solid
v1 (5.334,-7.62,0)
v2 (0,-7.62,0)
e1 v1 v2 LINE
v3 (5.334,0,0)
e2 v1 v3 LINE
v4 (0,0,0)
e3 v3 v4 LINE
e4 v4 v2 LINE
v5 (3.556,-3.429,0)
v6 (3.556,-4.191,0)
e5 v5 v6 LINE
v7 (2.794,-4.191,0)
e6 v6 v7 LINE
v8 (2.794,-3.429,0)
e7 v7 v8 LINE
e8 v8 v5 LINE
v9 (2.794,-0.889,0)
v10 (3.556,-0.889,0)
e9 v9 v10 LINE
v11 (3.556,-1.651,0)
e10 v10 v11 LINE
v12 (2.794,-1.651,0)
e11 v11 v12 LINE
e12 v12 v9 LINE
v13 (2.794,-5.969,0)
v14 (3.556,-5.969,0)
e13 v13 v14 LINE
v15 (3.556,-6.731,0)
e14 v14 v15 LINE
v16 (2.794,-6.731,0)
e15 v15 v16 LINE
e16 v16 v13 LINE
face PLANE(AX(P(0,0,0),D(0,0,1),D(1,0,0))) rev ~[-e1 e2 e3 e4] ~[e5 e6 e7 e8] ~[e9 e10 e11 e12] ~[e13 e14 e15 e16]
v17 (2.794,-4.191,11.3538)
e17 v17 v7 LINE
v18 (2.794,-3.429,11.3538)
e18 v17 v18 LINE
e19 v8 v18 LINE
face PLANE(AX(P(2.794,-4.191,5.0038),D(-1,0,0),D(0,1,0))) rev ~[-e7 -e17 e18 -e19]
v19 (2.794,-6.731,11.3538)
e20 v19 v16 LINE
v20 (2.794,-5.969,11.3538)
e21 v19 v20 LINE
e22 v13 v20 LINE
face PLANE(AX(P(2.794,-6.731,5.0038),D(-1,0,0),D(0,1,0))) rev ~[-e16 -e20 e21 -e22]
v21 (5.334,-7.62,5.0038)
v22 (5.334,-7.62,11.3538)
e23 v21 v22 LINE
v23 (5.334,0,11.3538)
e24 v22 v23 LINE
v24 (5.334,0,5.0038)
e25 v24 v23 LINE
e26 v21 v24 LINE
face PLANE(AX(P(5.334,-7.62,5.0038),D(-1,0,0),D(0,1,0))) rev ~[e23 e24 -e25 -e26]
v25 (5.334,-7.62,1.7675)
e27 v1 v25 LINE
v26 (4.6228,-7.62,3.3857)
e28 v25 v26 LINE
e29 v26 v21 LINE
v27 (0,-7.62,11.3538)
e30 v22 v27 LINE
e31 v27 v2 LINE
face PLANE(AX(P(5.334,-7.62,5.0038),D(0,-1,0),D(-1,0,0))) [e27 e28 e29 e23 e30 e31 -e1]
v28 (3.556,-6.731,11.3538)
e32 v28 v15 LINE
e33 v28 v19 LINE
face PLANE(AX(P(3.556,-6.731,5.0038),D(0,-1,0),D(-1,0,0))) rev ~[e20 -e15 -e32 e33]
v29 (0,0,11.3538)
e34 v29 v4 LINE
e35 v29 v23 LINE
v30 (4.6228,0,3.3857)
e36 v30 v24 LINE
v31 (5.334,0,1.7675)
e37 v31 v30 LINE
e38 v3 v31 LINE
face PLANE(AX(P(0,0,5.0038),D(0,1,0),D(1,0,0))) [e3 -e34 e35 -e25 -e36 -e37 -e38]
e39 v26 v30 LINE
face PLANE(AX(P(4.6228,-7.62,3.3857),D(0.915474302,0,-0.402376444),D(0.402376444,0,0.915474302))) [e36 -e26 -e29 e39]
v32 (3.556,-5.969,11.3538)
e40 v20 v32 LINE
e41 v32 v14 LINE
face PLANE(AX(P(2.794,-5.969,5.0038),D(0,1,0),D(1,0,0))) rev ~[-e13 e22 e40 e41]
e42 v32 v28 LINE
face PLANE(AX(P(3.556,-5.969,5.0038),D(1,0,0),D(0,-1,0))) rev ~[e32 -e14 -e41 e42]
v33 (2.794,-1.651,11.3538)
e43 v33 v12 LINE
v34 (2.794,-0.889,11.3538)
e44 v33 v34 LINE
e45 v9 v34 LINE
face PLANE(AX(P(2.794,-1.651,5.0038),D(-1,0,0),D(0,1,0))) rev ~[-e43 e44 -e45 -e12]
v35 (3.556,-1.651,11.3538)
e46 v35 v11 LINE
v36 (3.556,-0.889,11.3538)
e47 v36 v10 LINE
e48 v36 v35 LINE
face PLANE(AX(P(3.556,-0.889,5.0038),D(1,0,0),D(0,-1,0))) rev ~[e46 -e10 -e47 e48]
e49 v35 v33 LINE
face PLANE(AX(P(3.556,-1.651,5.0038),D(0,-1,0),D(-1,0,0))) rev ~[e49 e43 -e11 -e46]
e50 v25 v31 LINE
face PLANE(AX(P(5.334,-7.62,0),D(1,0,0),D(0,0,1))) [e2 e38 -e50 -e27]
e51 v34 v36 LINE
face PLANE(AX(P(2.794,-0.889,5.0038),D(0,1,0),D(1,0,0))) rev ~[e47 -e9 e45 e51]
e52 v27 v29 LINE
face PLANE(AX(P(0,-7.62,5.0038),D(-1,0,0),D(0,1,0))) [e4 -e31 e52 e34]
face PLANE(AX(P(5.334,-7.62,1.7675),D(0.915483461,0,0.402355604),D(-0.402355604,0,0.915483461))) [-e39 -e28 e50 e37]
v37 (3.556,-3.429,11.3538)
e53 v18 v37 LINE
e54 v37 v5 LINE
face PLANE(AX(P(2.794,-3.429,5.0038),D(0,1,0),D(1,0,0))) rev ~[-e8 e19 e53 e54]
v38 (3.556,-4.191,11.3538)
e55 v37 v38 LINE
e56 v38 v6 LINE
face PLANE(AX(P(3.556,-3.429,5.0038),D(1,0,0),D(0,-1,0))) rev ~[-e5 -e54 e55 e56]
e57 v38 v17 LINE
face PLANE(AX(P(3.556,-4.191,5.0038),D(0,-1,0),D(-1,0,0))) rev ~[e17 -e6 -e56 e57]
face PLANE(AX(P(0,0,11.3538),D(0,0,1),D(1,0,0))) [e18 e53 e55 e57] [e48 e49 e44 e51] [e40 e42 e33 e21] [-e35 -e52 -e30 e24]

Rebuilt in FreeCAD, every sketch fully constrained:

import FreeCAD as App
import Part
import Sketcher
from FreeCAD import Vector
Q = App.Units.Quantity


def add_polygon(sketch, points):
    """Adds a closed chain of lines whose ends are joined by coincident constraints."""
    first, n = sketch.GeometryCount, len(points)
    for a, b in zip(points, points[1:] + points[:1]):
        sketch.addGeometry(Part.LineSegment(App.Vector(*a, 0), App.Vector(*b, 0)), False)
    for i in range(n):
        sketch.addConstraint(Sketcher.Constraint("Coincident", first + i, 2, first + (i + 1) % n, 1))

doc = App.newDocument("Part")
body = doc.addObject("PartDesign::Body", "Body")

sketch1 = doc.addObject("Sketcher::SketchObject", "Sketch")
body.addObject(sketch1)
sketch1.AttachmentSupport = (doc.XY_Plane, [""])
sketch1.MapMode = "FlatFace"
add_polygon(sketch1, [(6.35, 0), (0, 0), (0, -7.62), (6.35, -7.62)])
add_polygon(sketch1, [(2.794, -1.651), (2.794, -0.889), (3.556, -0.889), (3.556, -1.651)])
add_polygon(sketch1, [(3.556, -6.731), (2.794, -6.731), (2.794, -5.969), (3.556, -5.969)])
add_polygon(sketch1, [(3.556, -4.191), (2.794, -4.191), (2.794, -3.429), (3.556, -3.429)])
sketch1.addConstraint(Sketcher.Constraint("Horizontal", 0))
sketch1.addConstraint(Sketcher.Constraint("Vertical", 1))
sketch1.addConstraint(Sketcher.Constraint("Horizontal", 2))
sketch1.addConstraint(Sketcher.Constraint("Vertical", 3))
sketch1.addConstraint(Sketcher.Constraint("Vertical", 4))
sketch1.addConstraint(Sketcher.Constraint("Horizontal", 5))
sketch1.addConstraint(Sketcher.Constraint("Vertical", 6))
sketch1.addConstraint(Sketcher.Constraint("Horizontal", 7))
sketch1.addConstraint(Sketcher.Constraint("Horizontal", 8))
sketch1.addConstraint(Sketcher.Constraint("Vertical", 9))
sketch1.addConstraint(Sketcher.Constraint("Horizontal", 10))
sketch1.addConstraint(Sketcher.Constraint("Vertical", 11))
sketch1.addConstraint(Sketcher.Constraint("Horizontal", 12))
sketch1.addConstraint(Sketcher.Constraint("Vertical", 13))
sketch1.addConstraint(Sketcher.Constraint("Horizontal", 14))
sketch1.addConstraint(Sketcher.Constraint("Vertical", 15))
sketch1.addConstraint(Sketcher.Constraint("Coincident", 0, 2, -1, 1))
sketch1.addConstraint(Sketcher.Constraint("Vertical", 7, 2, 8, 2))
sketch1.addConstraint(Sketcher.Constraint("Vertical", 6, 2, 10, 2))
sketch1.addConstraint(Sketcher.Constraint("Vertical", 9, 2, 12, 2))
sketch1.addConstraint(Sketcher.Constraint("Vertical", 11, 2, 14, 2))
sketch1.addConstraint(Sketcher.Constraint("Equal", 14, 4))
sketch1.addConstraint(Sketcher.Constraint("Equal", 6, 9))
sketch1.addConstraint(Sketcher.Constraint("Equal", 11, 13))
sketch1.addConstraint(Sketcher.Constraint("DistanceY", 1, 2, 1, 1, Q("0.3 in")))
sketch1.addConstraint(Sketcher.Constraint("DistanceX", 0, 2, 0, 1, Q("0.25 in")))
sketch1.addConstraint(Sketcher.Constraint("DistanceX", 5, 1, 5, 2, Q("0.03 in")))
sketch1.addConstraint(Sketcher.Constraint("DistanceY", 8, 2, 7, 2, Q("0.2 in")))
sketch1.addConstraint(Sketcher.Constraint("DistanceY", 12, 2, 7, 2, Q("0.1 in")))
sketch1.addConstraint(Sketcher.Constraint("DistanceX", -1, 1, 4, 2, Q("0.11 in")))
sketch1.addConstraint(Sketcher.Constraint("DistanceY", 4, 2, -1, 1, Q("0.035 in")))
pad1 = doc.addObject("PartDesign::Pad", "Pad")
body.addObject(pad1)
pad1.Profile = sketch1
pad1.Length = Q("0.197 in")

sketch2 = doc.addObject("Sketcher::SketchObject", "Sketch001")
body.addObject(sketch2)
sketch2.AttachmentSupport = (doc.XZ_Plane, [""])
sketch2.MapMode = "FlatFace"
sketch2.AttachmentOffset = App.Placement(Vector(0, 0, 0.3 * 25.4), App.Rotation())
add_polygon(sketch2, [(6.35, 0), (6.35, 5.0038), (5.334, 5.0038), (4.6228, 3.3857), (5.334, 1.7675), (5.334, 0)])
sketch2.addConstraint(Sketcher.Constraint("Vertical", 0))
sketch2.addConstraint(Sketcher.Constraint("Horizontal", 1))
sketch2.addConstraint(Sketcher.Constraint("Vertical", 4))
sketch2.addConstraint(Sketcher.Constraint("Horizontal", 5))
sketch2.addConstraint(Sketcher.Constraint("PointOnObject", 4, 2, -1))
sketch2.addConstraint(Sketcher.Constraint("Vertical", 1, 2, 3, 2))
sketch2.addConstraint(Sketcher.Constraint("Equal", 2, 3))
sketch2.addConstraint(Sketcher.Constraint("DistanceX", 1, 2, 1, 1, Q("0.04 in")))
sketch2.addConstraint(Sketcher.Constraint("DistanceY", 0, 1, 0, 2, Q("0.197 in")))
sketch2.addConstraint(Sketcher.Constraint("DistanceX", -1, 1, 0, 2, Q("0.25 in")))
sketch2.addConstraint(Sketcher.Constraint("DistanceX", -1, 1, 2, 2, Q("0.182 in")))
sketch2.addConstraint(Sketcher.Constraint("Distance", 3, Q("0.0696 in")))
pocket1 = doc.addObject("PartDesign::Pocket", "Pocket")
body.addObject(pocket1)
pocket1.Profile = sketch2
pocket1.Length = Q("1 in")

sketch3 = doc.addObject("Sketcher::SketchObject", "Sketch002")
body.addObject(sketch3)
sketch3.AttachmentSupport = (doc.XY_Plane, [""])
sketch3.MapMode = "FlatFace"
sketch3.AttachmentOffset = App.Placement(Vector(0, 0, 0.197 * 25.4), App.Rotation())
add_polygon(sketch3, [(0, -7.62), (5.334, -7.62), (5.334, 0), (0, 0)])
add_polygon(sketch3, [(2.794, -6.731), (2.794, -5.969), (3.556, -5.969), (3.556, -6.731)])
add_polygon(sketch3, [(2.794, -4.191), (2.794, -3.429), (3.556, -3.429), (3.556, -4.191)])
add_polygon(sketch3, [(2.794, -1.651), (2.794, -0.889), (3.556, -0.889), (3.556, -1.651)])
sketch3.addConstraint(Sketcher.Constraint("Horizontal", 0))
sketch3.addConstraint(Sketcher.Constraint("Vertical", 1))
sketch3.addConstraint(Sketcher.Constraint("Horizontal", 2))
sketch3.addConstraint(Sketcher.Constraint("Vertical", 3))
sketch3.addConstraint(Sketcher.Constraint("Vertical", 4))
sketch3.addConstraint(Sketcher.Constraint("Horizontal", 5))
sketch3.addConstraint(Sketcher.Constraint("Vertical", 6))
sketch3.addConstraint(Sketcher.Constraint("Horizontal", 7))
sketch3.addConstraint(Sketcher.Constraint("Vertical", 8))
sketch3.addConstraint(Sketcher.Constraint("Horizontal", 9))
sketch3.addConstraint(Sketcher.Constraint("Vertical", 10))
sketch3.addConstraint(Sketcher.Constraint("Horizontal", 11))
sketch3.addConstraint(Sketcher.Constraint("Vertical", 12))
sketch3.addConstraint(Sketcher.Constraint("Horizontal", 13))
sketch3.addConstraint(Sketcher.Constraint("Vertical", 14))
sketch3.addConstraint(Sketcher.Constraint("Horizontal", 15))
sketch3.addConstraint(Sketcher.Constraint("Coincident", 2, 2, -1, 1))
sketch3.addConstraint(Sketcher.Constraint("Vertical", 7, 2, 8, 2))
sketch3.addConstraint(Sketcher.Constraint("Vertical", 6, 2, 9, 2))
sketch3.addConstraint(Sketcher.Constraint("Vertical", 11, 2, 12, 2))
sketch3.addConstraint(Sketcher.Constraint("Vertical", 10, 2, 13, 2))
sketch3.addConstraint(Sketcher.Constraint("Equal", 15, 4))
sketch3.addConstraint(Sketcher.Constraint("Equal", 6, 8))
sketch3.addConstraint(Sketcher.Constraint("Equal", 10, 12))
sketch3.addConstraint(Sketcher.Constraint("DistanceY", 1, 1, 1, 2, Q("0.3 in")))
sketch3.addConstraint(Sketcher.Constraint("DistanceX", 0, 1, 0, 2, Q("0.21 in")))
sketch3.addConstraint(Sketcher.Constraint("DistanceX", 5, 1, 5, 2, Q("0.03 in")))
sketch3.addConstraint(Sketcher.Constraint("DistanceX", 4, 2, 0, 2, Q("0.1 in")))
sketch3.addConstraint(Sketcher.Constraint("DistanceY", 4, 2, 8, 2, Q("0.1 in")))
sketch3.addConstraint(Sketcher.Constraint("DistanceY", 8, 2, 12, 2, Q("0.1 in")))
sketch3.addConstraint(Sketcher.Constraint("DistanceY", 4, 2, -1, 1, Q("0.235 in")))
pad2 = doc.addObject("PartDesign::Pad", "Pad001")
body.addObject(pad2)
pad2.Profile = sketch3
pad2.Length = Q("0.25 in")

doc.recompute()
